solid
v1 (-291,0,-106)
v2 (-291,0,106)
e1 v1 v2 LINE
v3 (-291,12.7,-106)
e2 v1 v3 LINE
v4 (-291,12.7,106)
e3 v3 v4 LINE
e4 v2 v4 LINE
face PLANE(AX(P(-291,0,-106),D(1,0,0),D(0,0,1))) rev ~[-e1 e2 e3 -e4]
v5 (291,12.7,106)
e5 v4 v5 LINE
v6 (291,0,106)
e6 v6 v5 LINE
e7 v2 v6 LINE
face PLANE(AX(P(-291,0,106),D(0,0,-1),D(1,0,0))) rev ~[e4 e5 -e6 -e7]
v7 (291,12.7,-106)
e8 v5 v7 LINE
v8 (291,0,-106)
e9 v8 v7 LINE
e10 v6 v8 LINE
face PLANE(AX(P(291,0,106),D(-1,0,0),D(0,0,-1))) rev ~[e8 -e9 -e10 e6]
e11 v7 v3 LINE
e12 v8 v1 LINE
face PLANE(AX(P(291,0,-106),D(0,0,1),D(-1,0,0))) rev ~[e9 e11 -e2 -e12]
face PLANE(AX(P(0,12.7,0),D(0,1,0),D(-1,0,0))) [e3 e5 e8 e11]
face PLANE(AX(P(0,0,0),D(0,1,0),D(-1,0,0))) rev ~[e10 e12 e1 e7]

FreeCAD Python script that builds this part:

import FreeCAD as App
import Part
import Sketcher
from FreeCAD import Vector


def add_polygon(sketch, points):
    """Adds a closed chain of lines whose ends are joined by coincident constraints."""
    first, n = sketch.GeometryCount, len(points)
    for a, b in zip(points, points[1:] + points[:1]):
        sketch.addGeometry(Part.LineSegment(App.Vector(*a, 0), App.Vector(*b, 0)), False)
    for i in range(n):
        sketch.addConstraint(Sketcher.Constraint("Coincident", first + i, 2, first + (i + 1) % n, 1))

doc = App.newDocument("Part")
body = doc.addObject("PartDesign::Body", "Body")

# Sketch on XZ plane
sketch1 = doc.addObject("Sketcher::SketchObject", "Sketch")
body.addObject(sketch1)
sketch1.AttachmentSupport = (doc.XZ_Plane, [""])
sketch1.MapMode = "FlatFace"
add_polygon(sketch1, [(291, 106), (291, -106), (-291, -106), (-291, 106)])  # lines 0-3
sketch1.addConstraint([
    Sketcher.Constraint("Vertical", 0),
    Sketcher.Constraint("Horizontal", 1),
    Sketcher.Constraint("Vertical", 2),
    Sketcher.Constraint("Horizontal", 3),
    Sketcher.Constraint("Symmetric", 0, 2, 2, 2, -1, 1),
    Sketcher.Constraint("DistanceX", 1, 2, 1, 1, 582.0),
    Sketcher.Constraint("DistanceY", 0, 2, 0, 1, 212.0),
])
pad1 = doc.addObject("PartDesign::Pad", "Pad")
body.addObject(pad1)
pad1.Profile = sketch1
pad1.Length = 12.7
pad1.Reversed = True

doc.recompute()
